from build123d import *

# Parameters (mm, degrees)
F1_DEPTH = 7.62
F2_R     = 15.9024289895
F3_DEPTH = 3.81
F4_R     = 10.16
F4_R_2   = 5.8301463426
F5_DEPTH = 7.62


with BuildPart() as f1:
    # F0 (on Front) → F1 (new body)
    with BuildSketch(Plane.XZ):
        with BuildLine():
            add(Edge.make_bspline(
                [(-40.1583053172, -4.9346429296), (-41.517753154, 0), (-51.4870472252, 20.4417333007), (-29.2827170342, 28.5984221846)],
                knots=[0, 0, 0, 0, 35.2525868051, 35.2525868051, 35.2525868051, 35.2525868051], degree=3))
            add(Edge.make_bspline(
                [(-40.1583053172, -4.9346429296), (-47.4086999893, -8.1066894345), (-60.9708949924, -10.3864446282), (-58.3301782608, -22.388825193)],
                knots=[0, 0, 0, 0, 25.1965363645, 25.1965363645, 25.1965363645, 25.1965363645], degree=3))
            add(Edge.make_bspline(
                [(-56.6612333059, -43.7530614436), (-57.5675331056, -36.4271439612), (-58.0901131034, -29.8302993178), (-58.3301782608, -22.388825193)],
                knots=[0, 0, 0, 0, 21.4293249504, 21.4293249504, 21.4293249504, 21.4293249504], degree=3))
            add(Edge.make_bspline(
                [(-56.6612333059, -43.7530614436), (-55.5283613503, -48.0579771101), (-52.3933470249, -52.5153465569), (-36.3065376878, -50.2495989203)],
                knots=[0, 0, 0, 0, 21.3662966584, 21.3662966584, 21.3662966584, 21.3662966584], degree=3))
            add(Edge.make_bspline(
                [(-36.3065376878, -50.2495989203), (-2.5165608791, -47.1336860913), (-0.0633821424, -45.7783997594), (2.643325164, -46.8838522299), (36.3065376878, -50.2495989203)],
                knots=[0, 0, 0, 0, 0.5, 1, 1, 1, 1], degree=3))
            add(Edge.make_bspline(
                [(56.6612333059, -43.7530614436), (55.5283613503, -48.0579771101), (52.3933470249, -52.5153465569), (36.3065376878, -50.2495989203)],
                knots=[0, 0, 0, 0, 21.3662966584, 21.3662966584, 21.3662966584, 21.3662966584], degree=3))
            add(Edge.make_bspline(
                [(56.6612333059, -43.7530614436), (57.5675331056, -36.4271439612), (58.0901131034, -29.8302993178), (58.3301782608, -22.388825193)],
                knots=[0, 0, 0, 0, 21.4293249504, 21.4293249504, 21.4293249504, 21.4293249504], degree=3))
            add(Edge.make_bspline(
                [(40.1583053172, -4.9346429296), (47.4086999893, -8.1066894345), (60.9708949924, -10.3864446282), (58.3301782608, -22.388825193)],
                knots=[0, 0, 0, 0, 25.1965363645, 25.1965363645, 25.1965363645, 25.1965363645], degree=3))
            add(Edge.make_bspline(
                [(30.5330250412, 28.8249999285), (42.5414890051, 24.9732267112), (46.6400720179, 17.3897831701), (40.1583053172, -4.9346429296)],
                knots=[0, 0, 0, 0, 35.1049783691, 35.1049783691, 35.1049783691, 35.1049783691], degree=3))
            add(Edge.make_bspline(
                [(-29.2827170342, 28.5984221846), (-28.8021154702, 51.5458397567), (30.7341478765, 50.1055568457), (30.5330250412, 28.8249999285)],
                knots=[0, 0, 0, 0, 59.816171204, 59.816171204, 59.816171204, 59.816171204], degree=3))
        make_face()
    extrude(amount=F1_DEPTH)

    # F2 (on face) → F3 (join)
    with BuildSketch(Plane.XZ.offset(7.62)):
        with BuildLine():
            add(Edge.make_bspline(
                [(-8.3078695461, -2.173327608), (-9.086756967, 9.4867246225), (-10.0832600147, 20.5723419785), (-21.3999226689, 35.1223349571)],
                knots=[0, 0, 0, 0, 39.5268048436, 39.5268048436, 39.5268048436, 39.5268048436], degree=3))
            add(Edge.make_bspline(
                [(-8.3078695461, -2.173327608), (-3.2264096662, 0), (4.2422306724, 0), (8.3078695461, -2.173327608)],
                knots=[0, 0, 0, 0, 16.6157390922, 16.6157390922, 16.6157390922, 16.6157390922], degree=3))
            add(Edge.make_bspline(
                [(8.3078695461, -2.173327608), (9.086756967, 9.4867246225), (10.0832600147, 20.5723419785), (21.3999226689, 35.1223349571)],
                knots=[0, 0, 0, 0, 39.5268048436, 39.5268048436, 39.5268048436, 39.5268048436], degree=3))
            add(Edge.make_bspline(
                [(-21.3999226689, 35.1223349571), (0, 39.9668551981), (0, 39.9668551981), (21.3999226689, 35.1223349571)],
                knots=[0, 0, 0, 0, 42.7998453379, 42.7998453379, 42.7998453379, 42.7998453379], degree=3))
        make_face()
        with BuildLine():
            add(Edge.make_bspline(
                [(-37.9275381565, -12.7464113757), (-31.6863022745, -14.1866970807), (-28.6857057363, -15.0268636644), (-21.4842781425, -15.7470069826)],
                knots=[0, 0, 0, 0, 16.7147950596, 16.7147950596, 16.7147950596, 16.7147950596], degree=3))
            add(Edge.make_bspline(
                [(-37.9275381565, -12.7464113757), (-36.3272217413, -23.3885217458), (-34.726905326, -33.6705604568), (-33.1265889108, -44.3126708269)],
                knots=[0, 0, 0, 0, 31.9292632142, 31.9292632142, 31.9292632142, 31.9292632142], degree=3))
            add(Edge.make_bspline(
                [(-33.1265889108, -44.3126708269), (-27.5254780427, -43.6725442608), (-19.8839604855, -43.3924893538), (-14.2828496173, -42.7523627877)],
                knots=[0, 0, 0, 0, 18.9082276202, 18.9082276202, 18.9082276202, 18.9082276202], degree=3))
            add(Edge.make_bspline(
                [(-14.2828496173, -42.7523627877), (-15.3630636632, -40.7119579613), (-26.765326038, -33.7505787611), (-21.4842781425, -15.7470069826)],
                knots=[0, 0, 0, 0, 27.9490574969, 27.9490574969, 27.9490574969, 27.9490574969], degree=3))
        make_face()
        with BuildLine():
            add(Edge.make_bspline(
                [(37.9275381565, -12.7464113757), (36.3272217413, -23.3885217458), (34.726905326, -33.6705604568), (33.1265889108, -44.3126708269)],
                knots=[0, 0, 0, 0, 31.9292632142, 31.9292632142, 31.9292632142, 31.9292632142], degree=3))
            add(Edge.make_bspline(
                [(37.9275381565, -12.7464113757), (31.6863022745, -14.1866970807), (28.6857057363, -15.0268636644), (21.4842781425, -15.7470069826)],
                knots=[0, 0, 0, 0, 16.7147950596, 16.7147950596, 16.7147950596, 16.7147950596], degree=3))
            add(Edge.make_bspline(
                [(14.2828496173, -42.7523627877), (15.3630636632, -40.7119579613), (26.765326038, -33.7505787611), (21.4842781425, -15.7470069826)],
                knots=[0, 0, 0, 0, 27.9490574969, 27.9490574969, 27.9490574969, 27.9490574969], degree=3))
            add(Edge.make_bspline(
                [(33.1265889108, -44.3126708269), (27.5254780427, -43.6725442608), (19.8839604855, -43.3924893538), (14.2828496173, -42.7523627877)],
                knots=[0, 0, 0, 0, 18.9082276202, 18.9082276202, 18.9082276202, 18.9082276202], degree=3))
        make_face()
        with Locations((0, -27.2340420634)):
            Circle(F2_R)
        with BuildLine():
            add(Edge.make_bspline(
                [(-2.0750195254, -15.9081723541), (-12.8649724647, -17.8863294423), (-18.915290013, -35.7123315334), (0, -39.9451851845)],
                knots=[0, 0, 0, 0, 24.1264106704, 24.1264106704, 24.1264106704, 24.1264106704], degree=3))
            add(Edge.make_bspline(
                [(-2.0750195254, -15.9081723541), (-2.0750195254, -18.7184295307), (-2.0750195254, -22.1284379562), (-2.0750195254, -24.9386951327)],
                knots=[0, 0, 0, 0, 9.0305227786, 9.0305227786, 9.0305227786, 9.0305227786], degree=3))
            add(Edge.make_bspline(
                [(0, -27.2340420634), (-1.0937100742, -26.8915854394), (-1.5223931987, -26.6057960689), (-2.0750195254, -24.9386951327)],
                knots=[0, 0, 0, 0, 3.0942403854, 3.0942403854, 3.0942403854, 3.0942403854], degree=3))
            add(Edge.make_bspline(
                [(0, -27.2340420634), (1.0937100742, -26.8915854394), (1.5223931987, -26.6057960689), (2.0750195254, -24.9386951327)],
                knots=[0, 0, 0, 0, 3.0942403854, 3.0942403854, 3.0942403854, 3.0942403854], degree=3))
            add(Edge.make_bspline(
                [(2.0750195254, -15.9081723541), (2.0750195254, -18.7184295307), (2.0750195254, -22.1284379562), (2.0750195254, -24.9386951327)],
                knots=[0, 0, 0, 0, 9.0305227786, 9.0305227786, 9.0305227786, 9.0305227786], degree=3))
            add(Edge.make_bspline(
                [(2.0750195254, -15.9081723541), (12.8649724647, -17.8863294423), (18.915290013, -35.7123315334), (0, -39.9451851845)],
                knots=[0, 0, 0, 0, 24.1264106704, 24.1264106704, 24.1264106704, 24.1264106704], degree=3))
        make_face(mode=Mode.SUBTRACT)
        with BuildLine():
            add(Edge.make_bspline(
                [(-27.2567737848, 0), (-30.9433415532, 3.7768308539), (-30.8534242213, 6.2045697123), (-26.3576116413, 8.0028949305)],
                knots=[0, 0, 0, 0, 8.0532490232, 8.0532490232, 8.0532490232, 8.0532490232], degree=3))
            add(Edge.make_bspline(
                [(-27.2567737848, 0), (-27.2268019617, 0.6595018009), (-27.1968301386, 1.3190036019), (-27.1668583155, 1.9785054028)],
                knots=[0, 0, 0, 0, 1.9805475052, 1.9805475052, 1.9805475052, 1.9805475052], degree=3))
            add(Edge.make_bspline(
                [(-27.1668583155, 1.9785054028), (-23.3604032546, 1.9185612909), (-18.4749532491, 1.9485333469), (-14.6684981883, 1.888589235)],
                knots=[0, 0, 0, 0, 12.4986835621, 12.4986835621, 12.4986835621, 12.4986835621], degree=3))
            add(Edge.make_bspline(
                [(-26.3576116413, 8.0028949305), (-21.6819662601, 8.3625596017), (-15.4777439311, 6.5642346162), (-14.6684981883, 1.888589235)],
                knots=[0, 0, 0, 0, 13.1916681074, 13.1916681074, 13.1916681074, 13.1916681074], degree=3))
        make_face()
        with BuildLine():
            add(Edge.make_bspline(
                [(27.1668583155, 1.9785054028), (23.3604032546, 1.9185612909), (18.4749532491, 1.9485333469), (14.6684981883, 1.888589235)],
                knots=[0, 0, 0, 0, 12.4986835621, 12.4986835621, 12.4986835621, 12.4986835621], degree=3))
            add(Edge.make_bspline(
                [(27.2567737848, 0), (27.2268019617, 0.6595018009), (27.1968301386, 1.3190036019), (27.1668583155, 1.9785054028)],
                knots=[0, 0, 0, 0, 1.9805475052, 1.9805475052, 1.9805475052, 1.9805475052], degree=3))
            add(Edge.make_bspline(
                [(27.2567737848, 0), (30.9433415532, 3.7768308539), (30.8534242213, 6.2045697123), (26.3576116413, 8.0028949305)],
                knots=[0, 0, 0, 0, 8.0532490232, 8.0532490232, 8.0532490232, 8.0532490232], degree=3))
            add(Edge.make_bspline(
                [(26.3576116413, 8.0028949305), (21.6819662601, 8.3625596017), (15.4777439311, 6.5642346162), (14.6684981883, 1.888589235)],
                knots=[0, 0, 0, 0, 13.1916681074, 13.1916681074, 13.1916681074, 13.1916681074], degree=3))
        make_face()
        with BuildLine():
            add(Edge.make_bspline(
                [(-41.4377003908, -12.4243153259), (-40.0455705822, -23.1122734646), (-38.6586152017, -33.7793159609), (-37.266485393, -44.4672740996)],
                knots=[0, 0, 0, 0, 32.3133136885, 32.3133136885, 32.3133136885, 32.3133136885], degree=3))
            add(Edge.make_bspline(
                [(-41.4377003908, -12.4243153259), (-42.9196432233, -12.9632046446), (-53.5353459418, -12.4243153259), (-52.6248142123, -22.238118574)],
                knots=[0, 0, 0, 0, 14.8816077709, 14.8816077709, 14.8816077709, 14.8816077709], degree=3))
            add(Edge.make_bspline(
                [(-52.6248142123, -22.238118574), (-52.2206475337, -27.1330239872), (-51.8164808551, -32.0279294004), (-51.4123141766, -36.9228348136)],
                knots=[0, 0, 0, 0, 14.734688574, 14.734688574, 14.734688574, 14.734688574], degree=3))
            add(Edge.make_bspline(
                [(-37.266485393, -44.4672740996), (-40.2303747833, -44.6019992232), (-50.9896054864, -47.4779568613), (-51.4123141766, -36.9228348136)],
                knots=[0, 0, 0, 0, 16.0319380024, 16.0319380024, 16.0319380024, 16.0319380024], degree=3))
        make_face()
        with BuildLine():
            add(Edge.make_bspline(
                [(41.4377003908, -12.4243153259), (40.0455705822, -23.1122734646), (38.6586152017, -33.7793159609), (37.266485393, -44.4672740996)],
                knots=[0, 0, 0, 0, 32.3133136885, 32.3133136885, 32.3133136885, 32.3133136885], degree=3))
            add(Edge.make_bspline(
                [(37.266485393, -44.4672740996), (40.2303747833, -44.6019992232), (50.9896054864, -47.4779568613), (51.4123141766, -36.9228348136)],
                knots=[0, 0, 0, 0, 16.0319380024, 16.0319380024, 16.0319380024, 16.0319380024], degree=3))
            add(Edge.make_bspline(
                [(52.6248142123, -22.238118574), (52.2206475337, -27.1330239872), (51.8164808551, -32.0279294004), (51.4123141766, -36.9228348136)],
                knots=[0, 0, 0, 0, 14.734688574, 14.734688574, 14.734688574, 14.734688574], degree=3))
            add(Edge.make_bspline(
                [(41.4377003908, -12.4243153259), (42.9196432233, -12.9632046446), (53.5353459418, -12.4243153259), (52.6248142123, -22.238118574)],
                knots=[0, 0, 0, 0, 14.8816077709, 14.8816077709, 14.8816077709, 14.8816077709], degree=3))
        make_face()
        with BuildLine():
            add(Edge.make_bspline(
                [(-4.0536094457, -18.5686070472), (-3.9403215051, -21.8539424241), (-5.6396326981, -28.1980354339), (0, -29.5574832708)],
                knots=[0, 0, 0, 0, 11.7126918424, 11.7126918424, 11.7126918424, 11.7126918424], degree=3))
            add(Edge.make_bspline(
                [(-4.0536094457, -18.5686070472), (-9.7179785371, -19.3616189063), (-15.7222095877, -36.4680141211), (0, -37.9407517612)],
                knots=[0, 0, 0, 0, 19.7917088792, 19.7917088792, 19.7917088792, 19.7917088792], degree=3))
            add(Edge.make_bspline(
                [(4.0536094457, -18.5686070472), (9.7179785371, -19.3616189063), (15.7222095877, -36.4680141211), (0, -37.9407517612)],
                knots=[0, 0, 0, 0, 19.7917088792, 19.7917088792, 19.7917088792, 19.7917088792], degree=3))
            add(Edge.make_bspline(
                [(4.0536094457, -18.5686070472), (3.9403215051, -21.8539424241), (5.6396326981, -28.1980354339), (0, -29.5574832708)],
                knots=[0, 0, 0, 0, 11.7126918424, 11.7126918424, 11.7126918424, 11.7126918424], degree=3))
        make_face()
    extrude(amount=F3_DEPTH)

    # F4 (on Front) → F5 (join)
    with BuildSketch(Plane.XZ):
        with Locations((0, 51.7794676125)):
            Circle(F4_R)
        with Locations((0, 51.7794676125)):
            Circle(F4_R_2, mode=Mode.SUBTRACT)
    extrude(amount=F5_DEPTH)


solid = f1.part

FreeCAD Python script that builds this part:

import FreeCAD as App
import Part
import Sketcher

V = App.Vector
Q = App.Units.Quantity

doc = App.newDocument("Part")
body = doc.addObject("PartDesign::Body", "Body")

# Sketch on XZ plane
sketch1 = doc.addObject("Sketcher::SketchObject", "Sketch")
body.addObject(sketch1)
sketch1.AttachmentSupport = (doc.XZ_Plane, [""])
sketch1.MapMode = "FlatFace"
sketch1.addGeometry([
    Part.BSplineCurve([V(-40.158305, -4.934643, 0), V(-41.517753, 0, 0), V(-51.487047, 20.441733, 0), V(-29.282717, 28.598422, 0)], [4, 4], [0, 35.252586805], False, 3, [1, 1, 1, 1], False),  # 0
    Part.BSplineCurve([V(-40.158305, -4.934643, 0), V(-47.4087, -8.106689, 0), V(-60.970895, -10.386445, 0), V(-58.330178, -22.388825, 0)], [4, 4], [0, 25.196536364], False, 3, [1, 1, 1, 1], False),  # 1
    Part.BSplineCurve([V(-56.661233, -43.753061, 0), V(-57.567533, -36.427144, 0), V(-58.090113, -29.830299, 0), V(-58.330178, -22.388825, 0)], [4, 4], [0, 21.42932495], False, 3, [1, 1, 1, 1], False),  # 2
    Part.BSplineCurve([V(-56.661233, -43.753061, 0), V(-55.528361, -48.057977, 0), V(-52.393347, -52.515347, 0), V(-36.306538, -50.249599, 0)], [4, 4], [0, 21.366296658], False, 3, [1, 1, 1, 1], False),  # 3
    Part.BSplineCurve([V(-36.306538, -50.249599, 0), V(-2.516561, -47.133686, 0), V(-0.063382, -45.7784, 0), V(2.643325, -46.883852, 0), V(36.306538, -50.249599, 0)], [4, 1, 4], [0, 0.5, 1], False, 3, [1, 1, 1, 1, 1], False),  # 4
    Part.BSplineCurve([V(56.661233, -43.753061, 0), V(55.528361, -48.057977, 0), V(52.393347, -52.515347, 0), V(36.306538, -50.249599, 0)], [4, 4], [0, 21.366296658], False, 3, [1, 1, 1, 1], False),  # 5
    Part.BSplineCurve([V(56.661233, -43.753061, 0), V(57.567533, -36.427144, 0), V(58.090113, -29.830299, 0), V(58.330178, -22.388825, 0)], [4, 4], [0, 21.42932495], False, 3, [1, 1, 1, 1], False),  # 6
    Part.BSplineCurve([V(40.158305, -4.934643, 0), V(47.4087, -8.106689, 0), V(60.970895, -10.386445, 0), V(58.330178, -22.388825, 0)], [4, 4], [0, 25.196536364], False, 3, [1, 1, 1, 1], False),  # 7
    Part.BSplineCurve([V(30.533025, 28.825, 0), V(42.541489, 24.973227, 0), V(46.640072, 17.389783, 0), V(40.158305, -4.934643, 0)], [4, 4], [0, 35.104978369], False, 3, [1, 1, 1, 1], False),  # 8
    Part.BSplineCurve([V(-29.282717, 28.598422, 0), V(-28.802115, 51.54584, 0), V(30.734148, 50.105557, 0), V(30.533025, 28.825, 0)], [4, 4], [0, 59.816171204], False, 3, [1, 1, 1, 1], False),  # 9
], False)
sketch1.addConstraint([
    Sketcher.Constraint("Block", 0),
    Sketcher.Constraint("Block", 1),
    Sketcher.Constraint("Block", 2),
    Sketcher.Constraint("Block", 3),
    Sketcher.Constraint("Block", 4),
    Sketcher.Constraint("Block", 5),
    Sketcher.Constraint("Block", 6),
    Sketcher.Constraint("Block", 7),
    Sketcher.Constraint("Block", 8),
    Sketcher.Constraint("Block", 9),
])
pad1 = doc.addObject("PartDesign::Pad", "Pad")
body.addObject(pad1)
pad1.Profile = sketch1
pad1.Length = Q("0.3 in")

# Sketch on XZ plane
sketch2 = doc.addObject("Sketcher::SketchObject", "Sketch001")
body.addObject(sketch2)
sketch2.AttachmentSupport = (doc.XZ_Plane, [""])
sketch2.MapMode = "FlatFace"
sketch2.AttachmentOffset = App.Placement(V(0, 0, 0.3 * 25.4), App.Rotation())
sketch2.addGeometry([
    Part.BSplineCurve([V(-8.30787, -2.173328, 0), V(-9.086757, 9.486725, 0), V(-10.08326, 20.572342, 0), V(-21.399923, 35.122335, 0)], [4, 4], [0, 39.526804844], False, 3, [1, 1, 1, 1], False),  # 0
    Part.BSplineCurve([V(-8.30787, -2.173328, 0), V(-3.22641, 0, 0), V(4.242231, 0, 0), V(8.30787, -2.173328, 0)], [4, 4], [0, 16.615739092], False, 3, [1, 1, 1, 1], False),  # 1
    Part.BSplineCurve([V(8.30787, -2.173328, 0), V(9.086757, 9.486725, 0), V(10.08326, 20.572342, 0), V(21.399923, 35.122335, 0)], [4, 4], [0, 39.526804844], False, 3, [1, 1, 1, 1], False),  # 2
    Part.BSplineCurve([V(-21.399923, 35.122335, 0), V(0, 39.966855, 0), V(0, 39.966855, 0), V(21.399923, 35.122335, 0)], [4, 4], [0, 42.799845338], False, 3, [1, 1, 1, 1], False),  # 3
    Part.BSplineCurve([V(-37.927538, -12.746411, 0), V(-31.686302, -14.186697, 0), V(-28.685706, -15.026864, 0), V(-21.484278, -15.747007, 0)], [4, 4], [0, 16.71479506], False, 3, [1, 1, 1, 1], False),  # 4
    Part.BSplineCurve([V(-37.927538, -12.746411, 0), V(-36.327222, -23.388522, 0), V(-34.726905, -33.67056, 0), V(-33.126589, -44.312671, 0)], [4, 4], [0, 31.929263214], False, 3, [1, 1, 1, 1], False),  # 5
    Part.BSplineCurve([V(-33.126589, -44.312671, 0), V(-27.525478, -43.672544, 0), V(-19.88396, -43.392489, 0), V(-14.28285, -42.752363, 0)], [4, 4], [0, 18.90822762], False, 3, [1, 1, 1, 1], False),  # 6
    Part.BSplineCurve([V(-14.28285, -42.752363, 0), V(-15.363064, -40.711958, 0), V(-26.765326, -33.750579, 0), V(-21.484278, -15.747007, 0)], [4, 4], [0, 27.949057497], False, 3, [1, 1, 1, 1], False),  # 7
    Part.BSplineCurve([V(37.927538, -12.746411, 0), V(36.327222, -23.388522, 0), V(34.726905, -33.67056, 0), V(33.126589, -44.312671, 0)], [4, 4], [0, 31.929263214], False, 3, [1, 1, 1, 1], False),  # 8
    Part.BSplineCurve([V(37.927538, -12.746411, 0), V(31.686302, -14.186697, 0), V(28.685706, -15.026864, 0), V(21.484278, -15.747007, 0)], [4, 4], [0, 16.71479506], False, 3, [1, 1, 1, 1], False),  # 9
    Part.BSplineCurve([V(14.28285, -42.752363, 0), V(15.363064, -40.711958, 0), V(26.765326, -33.750579, 0), V(21.484278, -15.747007, 0)], [4, 4], [0, 27.949057497], False, 3, [1, 1, 1, 1], False),  # 10
    Part.BSplineCurve([V(33.126589, -44.312671, 0), V(27.525478, -43.672544, 0), V(19.88396, -43.392489, 0), V(14.28285, -42.752363, 0)], [4, 4], [0, 18.90822762], False, 3, [1, 1, 1, 1], False),  # 11
    Part.Circle(V(0, -27.234042, 0), V(0, 0, 1), 15.902429),  # 12
    Part.BSplineCurve([V(-2.07502, -15.908172, 0), V(-12.864972, -17.886329, 0), V(-18.91529, -35.712332, 0), V(0, -39.945185, 0)], [4, 4], [0, 24.12641067], False, 3, [1, 1, 1, 1], False),  # 13
    Part.BSplineCurve([V(-2.07502, -15.908172, 0), V(-2.07502, -18.71843, 0), V(-2.07502, -22.128438, 0), V(-2.07502, -24.938695, 0)], [4, 4], [0, 9.030522779], False, 3, [1, 1, 1, 1], False),  # 14
    Part.BSplineCurve([V(0, -27.234042, 0), V(-1.09371, -26.891585, 0), V(-1.522393, -26.605796, 0), V(-2.07502, -24.938695, 0)], [4, 4], [0, 3.094240385], False, 3, [1, 1, 1, 1], False),  # 15
    Part.BSplineCurve([V(0, -27.234042, 0), V(1.09371, -26.891585, 0), V(1.522393, -26.605796, 0), V(2.07502, -24.938695, 0)], [4, 4], [0, 3.094240385], False, 3, [1, 1, 1, 1], False),  # 16
    Part.BSplineCurve([V(2.07502, -15.908172, 0), V(2.07502, -18.71843, 0), V(2.07502, -22.128438, 0), V(2.07502, -24.938695, 0)], [4, 4], [0, 9.030522779], False, 3, [1, 1, 1, 1], False),  # 17
    Part.BSplineCurve([V(2.07502, -15.908172, 0), V(12.864972, -17.886329, 0), V(18.91529, -35.712332, 0), V(0, -39.945185, 0)], [4, 4], [0, 24.12641067], False, 3, [1, 1, 1, 1], False),  # 18
    Part.BSplineCurve([V(-27.256774, 0, 0), V(-30.943342, 3.776831, 0), V(-30.853424, 6.20457, 0), V(-26.357612, 8.002895, 0)], [4, 4], [0, 8.053249023], False, 3, [1, 1, 1, 1], False),  # 19
    Part.BSplineCurve([V(-27.256774, 0, 0), V(-27.226802, 0.659502, 0), V(-27.19683, 1.319004, 0), V(-27.166858, 1.978505, 0)], [4, 4], [0, 1.980547505], False, 3, [1, 1, 1, 1], False),  # 20
    Part.BSplineCurve([V(-27.166858, 1.978505, 0), V(-23.360403, 1.918561, 0), V(-18.474953, 1.948533, 0), V(-14.668498, 1.888589, 0)], [4, 4], [0, 12.498683562], False, 3, [1, 1, 1, 1], False),  # 21
    Part.BSplineCurve([V(-26.357612, 8.002895, 0), V(-21.681966, 8.36256, 0), V(-15.477744, 6.564235, 0), V(-14.668498, 1.888589, 0)], [4, 4], [0, 13.191668107], False, 3, [1, 1, 1, 1], False),  # 22
    Part.BSplineCurve([V(27.166858, 1.978505, 0), V(23.360403, 1.918561, 0), V(18.474953, 1.948533, 0), V(14.668498, 1.888589, 0)], [4, 4], [0, 12.498683562], False, 3, [1, 1, 1, 1], False),  # 23
    Part.BSplineCurve([V(27.256774, 0, 0), V(27.226802, 0.659502, 0), V(27.19683, 1.319004, 0), V(27.166858, 1.978505, 0)], [4, 4], [0, 1.980547505], False, 3, [1, 1, 1, 1], False),  # 24
    Part.BSplineCurve([V(27.256774, 0, 0), V(30.943342, 3.776831, 0), V(30.853424, 6.20457, 0), V(26.357612, 8.002895, 0)], [4, 4], [0, 8.053249023], False, 3, [1, 1, 1, 1], False),  # 25
    Part.BSplineCurve([V(26.357612, 8.002895, 0), V(21.681966, 8.36256, 0), V(15.477744, 6.564235, 0), V(14.668498, 1.888589, 0)], [4, 4], [0, 13.191668107], False, 3, [1, 1, 1, 1], False),  # 26
    Part.BSplineCurve([V(-41.4377, -12.424315, 0), V(-40.045571, -23.112273, 0), V(-38.658615, -33.779316, 0), V(-37.266485, -44.467274, 0)], [4, 4], [0, 32.313313689], False, 3, [1, 1, 1, 1], False),  # 27
    Part.BSplineCurve([V(-41.4377, -12.424315, 0), V(-42.919643, -12.963205, 0), V(-53.535346, -12.424315, 0), V(-52.624814, -22.238119, 0)], [4, 4], [0, 14.881607771], False, 3, [1, 1, 1, 1], False),  # 28
    Part.BSplineCurve([V(-52.624814, -22.238119, 0), V(-52.220648, -27.133024, 0), V(-51.816481, -32.027929, 0), V(-51.412314, -36.922835, 0)], [4, 4], [0, 14.734688574], False, 3, [1, 1, 1, 1], False),  # 29
    Part.BSplineCurve([V(-37.266485, -44.467274, 0), V(-40.230375, -44.601999, 0), V(-50.989605, -47.477957, 0), V(-51.412314, -36.922835, 0)], [4, 4], [0, 16.031938002], False, 3, [1, 1, 1, 1], False),  # 30
    Part.BSplineCurve([V(41.4377, -12.424315, 0), V(40.045571, -23.112273, 0), V(38.658615, -33.779316, 0), V(37.266485, -44.467274, 0)], [4, 4], [0, 32.313313689], False, 3, [1, 1, 1, 1], False),  # 31
    Part.BSplineCurve([V(37.266485, -44.467274, 0), V(40.230375, -44.601999, 0), V(50.989605, -47.477957, 0), V(51.412314, -36.922835, 0)], [4, 4], [0, 16.031938002], False, 3, [1, 1, 1, 1], False),  # 32
    Part.BSplineCurve([V(52.624814, -22.238119, 0), V(52.220648, -27.133024, 0), V(51.816481, -32.027929, 0), V(51.412314, -36.922835, 0)], [4, 4], [0, 14.734688574], False, 3, [1, 1, 1, 1], False),  # 33
    Part.BSplineCurve([V(41.4377, -12.424315, 0), V(42.919643, -12.963205, 0), V(53.535346, -12.424315, 0), V(52.624814, -22.238119, 0)], [4, 4], [0, 14.881607771], False, 3, [1, 1, 1, 1], False),  # 34
    Part.BSplineCurve([V(-4.053609, -18.568607, 0), V(-3.940322, -21.853942, 0), V(-5.639633, -28.198035, 0), V(0, -29.557483, 0)], [4, 4], [0, 11.712691842], False, 3, [1, 1, 1, 1], False),  # 35
    Part.BSplineCurve([V(-4.053609, -18.568607, 0), V(-9.717979, -19.361619, 0), V(-15.72221, -36.468014, 0), V(0, -37.940752, 0)], [4, 4], [0, 19.791708879], False, 3, [1, 1, 1, 1], False),  # 36
    Part.BSplineCurve([V(4.053609, -18.568607, 0), V(9.717979, -19.361619, 0), V(15.72221, -36.468014, 0), V(0, -37.940752, 0)], [4, 4], [0, 19.791708879], False, 3, [1, 1, 1, 1], False),  # 37
    Part.BSplineCurve([V(4.053609, -18.568607, 0), V(3.940322, -21.853942, 0), V(5.639633, -28.198035, 0), V(0, -29.557483, 0)], [4, 4], [0, 11.712691842], False, 3, [1, 1, 1, 1], False),  # 38
], False)
sketch2.addConstraint([
    Sketcher.Constraint("Block", 0),
    Sketcher.Constraint("Block", 1),
    Sketcher.Constraint("Block", 2),
    Sketcher.Constraint("Block", 3),
    Sketcher.Constraint("Block", 4),
    Sketcher.Constraint("Block", 5),
    Sketcher.Constraint("Block", 6),
    Sketcher.Constraint("Block", 7),
    Sketcher.Constraint("Block", 8),
    Sketcher.Constraint("Block", 9),
    Sketcher.Constraint("Block", 10),
    Sketcher.Constraint("Block", 11),
    Sketcher.Constraint("Block", 13),
    Sketcher.Constraint("Block", 14),
    Sketcher.Constraint("Block", 15),
    Sketcher.Constraint("Block", 16),
    Sketcher.Constraint("Block", 17),
    Sketcher.Constraint("Block", 18),
    Sketcher.Constraint("Block", 19),
    Sketcher.Constraint("Block", 20),
    Sketcher.Constraint("Block", 21),
    Sketcher.Constraint("Block", 22),
    Sketcher.Constraint("Block", 23),
    Sketcher.Constraint("Block", 24),
    Sketcher.Constraint("Block", 25),
    Sketcher.Constraint("Block", 26),
    Sketcher.Constraint("Block", 27),
    Sketcher.Constraint("Block", 28),
    Sketcher.Constraint("Block", 29),
    Sketcher.Constraint("Block", 30),
    Sketcher.Constraint("Block", 31),
    Sketcher.Constraint("Block", 32),
    Sketcher.Constraint("Block", 33),
    Sketcher.Constraint("Block", 34),
    Sketcher.Constraint("Block", 35),
    Sketcher.Constraint("Block", 36),
    Sketcher.Constraint("Block", 37),
    Sketcher.Constraint("Block", 38),
    Sketcher.Constraint("PointOnObject", 12, 3, -2),
    Sketcher.Constraint("Diameter", 12, Q("31.804858 mm")),
    Sketcher.Constraint("DistanceY", 12, 3, -1, 1, Q("27.234042 mm")),
])
pad2 = doc.addObject("PartDesign::Pad", "Pad001")
body.addObject(pad2)
pad2.Profile = sketch2
pad2.Length = Q("0.15 in")

# Sketch on XZ plane
sketch3 = doc.addObject("Sketcher::SketchObject", "Sketch002")
body.addObject(sketch3)
sketch3.AttachmentSupport = (doc.XZ_Plane, [""])
sketch3.MapMode = "FlatFace"
sketch3.addGeometry([
    Part.Circle(V(0, 52, 0), V(0, 0, 1), 10),
    Part.Circle(V(0, 52, 0), V(0, 0, 1), 6),
], False)
sketch3.addConstraint([
    Sketcher.Constraint("Coincident", 1, 3, 0, 3),
    Sketcher.Constraint("PointOnObject", 0, 3, -2),
    Sketcher.Constraint("Diameter", 0, Q("0.8 in")),
    Sketcher.Constraint("Diameter", 1, Q("11.660293 mm")),
    Sketcher.Constraint("DistanceY", -1, 1, 0, 3, Q("51.779468 mm")),
])
pad3 = doc.addObject("PartDesign::Pad", "Pad002")
body.addObject(pad3)
pad3.Profile = sketch3
pad3.Length = Q("0.3 in")

doc.recompute()
